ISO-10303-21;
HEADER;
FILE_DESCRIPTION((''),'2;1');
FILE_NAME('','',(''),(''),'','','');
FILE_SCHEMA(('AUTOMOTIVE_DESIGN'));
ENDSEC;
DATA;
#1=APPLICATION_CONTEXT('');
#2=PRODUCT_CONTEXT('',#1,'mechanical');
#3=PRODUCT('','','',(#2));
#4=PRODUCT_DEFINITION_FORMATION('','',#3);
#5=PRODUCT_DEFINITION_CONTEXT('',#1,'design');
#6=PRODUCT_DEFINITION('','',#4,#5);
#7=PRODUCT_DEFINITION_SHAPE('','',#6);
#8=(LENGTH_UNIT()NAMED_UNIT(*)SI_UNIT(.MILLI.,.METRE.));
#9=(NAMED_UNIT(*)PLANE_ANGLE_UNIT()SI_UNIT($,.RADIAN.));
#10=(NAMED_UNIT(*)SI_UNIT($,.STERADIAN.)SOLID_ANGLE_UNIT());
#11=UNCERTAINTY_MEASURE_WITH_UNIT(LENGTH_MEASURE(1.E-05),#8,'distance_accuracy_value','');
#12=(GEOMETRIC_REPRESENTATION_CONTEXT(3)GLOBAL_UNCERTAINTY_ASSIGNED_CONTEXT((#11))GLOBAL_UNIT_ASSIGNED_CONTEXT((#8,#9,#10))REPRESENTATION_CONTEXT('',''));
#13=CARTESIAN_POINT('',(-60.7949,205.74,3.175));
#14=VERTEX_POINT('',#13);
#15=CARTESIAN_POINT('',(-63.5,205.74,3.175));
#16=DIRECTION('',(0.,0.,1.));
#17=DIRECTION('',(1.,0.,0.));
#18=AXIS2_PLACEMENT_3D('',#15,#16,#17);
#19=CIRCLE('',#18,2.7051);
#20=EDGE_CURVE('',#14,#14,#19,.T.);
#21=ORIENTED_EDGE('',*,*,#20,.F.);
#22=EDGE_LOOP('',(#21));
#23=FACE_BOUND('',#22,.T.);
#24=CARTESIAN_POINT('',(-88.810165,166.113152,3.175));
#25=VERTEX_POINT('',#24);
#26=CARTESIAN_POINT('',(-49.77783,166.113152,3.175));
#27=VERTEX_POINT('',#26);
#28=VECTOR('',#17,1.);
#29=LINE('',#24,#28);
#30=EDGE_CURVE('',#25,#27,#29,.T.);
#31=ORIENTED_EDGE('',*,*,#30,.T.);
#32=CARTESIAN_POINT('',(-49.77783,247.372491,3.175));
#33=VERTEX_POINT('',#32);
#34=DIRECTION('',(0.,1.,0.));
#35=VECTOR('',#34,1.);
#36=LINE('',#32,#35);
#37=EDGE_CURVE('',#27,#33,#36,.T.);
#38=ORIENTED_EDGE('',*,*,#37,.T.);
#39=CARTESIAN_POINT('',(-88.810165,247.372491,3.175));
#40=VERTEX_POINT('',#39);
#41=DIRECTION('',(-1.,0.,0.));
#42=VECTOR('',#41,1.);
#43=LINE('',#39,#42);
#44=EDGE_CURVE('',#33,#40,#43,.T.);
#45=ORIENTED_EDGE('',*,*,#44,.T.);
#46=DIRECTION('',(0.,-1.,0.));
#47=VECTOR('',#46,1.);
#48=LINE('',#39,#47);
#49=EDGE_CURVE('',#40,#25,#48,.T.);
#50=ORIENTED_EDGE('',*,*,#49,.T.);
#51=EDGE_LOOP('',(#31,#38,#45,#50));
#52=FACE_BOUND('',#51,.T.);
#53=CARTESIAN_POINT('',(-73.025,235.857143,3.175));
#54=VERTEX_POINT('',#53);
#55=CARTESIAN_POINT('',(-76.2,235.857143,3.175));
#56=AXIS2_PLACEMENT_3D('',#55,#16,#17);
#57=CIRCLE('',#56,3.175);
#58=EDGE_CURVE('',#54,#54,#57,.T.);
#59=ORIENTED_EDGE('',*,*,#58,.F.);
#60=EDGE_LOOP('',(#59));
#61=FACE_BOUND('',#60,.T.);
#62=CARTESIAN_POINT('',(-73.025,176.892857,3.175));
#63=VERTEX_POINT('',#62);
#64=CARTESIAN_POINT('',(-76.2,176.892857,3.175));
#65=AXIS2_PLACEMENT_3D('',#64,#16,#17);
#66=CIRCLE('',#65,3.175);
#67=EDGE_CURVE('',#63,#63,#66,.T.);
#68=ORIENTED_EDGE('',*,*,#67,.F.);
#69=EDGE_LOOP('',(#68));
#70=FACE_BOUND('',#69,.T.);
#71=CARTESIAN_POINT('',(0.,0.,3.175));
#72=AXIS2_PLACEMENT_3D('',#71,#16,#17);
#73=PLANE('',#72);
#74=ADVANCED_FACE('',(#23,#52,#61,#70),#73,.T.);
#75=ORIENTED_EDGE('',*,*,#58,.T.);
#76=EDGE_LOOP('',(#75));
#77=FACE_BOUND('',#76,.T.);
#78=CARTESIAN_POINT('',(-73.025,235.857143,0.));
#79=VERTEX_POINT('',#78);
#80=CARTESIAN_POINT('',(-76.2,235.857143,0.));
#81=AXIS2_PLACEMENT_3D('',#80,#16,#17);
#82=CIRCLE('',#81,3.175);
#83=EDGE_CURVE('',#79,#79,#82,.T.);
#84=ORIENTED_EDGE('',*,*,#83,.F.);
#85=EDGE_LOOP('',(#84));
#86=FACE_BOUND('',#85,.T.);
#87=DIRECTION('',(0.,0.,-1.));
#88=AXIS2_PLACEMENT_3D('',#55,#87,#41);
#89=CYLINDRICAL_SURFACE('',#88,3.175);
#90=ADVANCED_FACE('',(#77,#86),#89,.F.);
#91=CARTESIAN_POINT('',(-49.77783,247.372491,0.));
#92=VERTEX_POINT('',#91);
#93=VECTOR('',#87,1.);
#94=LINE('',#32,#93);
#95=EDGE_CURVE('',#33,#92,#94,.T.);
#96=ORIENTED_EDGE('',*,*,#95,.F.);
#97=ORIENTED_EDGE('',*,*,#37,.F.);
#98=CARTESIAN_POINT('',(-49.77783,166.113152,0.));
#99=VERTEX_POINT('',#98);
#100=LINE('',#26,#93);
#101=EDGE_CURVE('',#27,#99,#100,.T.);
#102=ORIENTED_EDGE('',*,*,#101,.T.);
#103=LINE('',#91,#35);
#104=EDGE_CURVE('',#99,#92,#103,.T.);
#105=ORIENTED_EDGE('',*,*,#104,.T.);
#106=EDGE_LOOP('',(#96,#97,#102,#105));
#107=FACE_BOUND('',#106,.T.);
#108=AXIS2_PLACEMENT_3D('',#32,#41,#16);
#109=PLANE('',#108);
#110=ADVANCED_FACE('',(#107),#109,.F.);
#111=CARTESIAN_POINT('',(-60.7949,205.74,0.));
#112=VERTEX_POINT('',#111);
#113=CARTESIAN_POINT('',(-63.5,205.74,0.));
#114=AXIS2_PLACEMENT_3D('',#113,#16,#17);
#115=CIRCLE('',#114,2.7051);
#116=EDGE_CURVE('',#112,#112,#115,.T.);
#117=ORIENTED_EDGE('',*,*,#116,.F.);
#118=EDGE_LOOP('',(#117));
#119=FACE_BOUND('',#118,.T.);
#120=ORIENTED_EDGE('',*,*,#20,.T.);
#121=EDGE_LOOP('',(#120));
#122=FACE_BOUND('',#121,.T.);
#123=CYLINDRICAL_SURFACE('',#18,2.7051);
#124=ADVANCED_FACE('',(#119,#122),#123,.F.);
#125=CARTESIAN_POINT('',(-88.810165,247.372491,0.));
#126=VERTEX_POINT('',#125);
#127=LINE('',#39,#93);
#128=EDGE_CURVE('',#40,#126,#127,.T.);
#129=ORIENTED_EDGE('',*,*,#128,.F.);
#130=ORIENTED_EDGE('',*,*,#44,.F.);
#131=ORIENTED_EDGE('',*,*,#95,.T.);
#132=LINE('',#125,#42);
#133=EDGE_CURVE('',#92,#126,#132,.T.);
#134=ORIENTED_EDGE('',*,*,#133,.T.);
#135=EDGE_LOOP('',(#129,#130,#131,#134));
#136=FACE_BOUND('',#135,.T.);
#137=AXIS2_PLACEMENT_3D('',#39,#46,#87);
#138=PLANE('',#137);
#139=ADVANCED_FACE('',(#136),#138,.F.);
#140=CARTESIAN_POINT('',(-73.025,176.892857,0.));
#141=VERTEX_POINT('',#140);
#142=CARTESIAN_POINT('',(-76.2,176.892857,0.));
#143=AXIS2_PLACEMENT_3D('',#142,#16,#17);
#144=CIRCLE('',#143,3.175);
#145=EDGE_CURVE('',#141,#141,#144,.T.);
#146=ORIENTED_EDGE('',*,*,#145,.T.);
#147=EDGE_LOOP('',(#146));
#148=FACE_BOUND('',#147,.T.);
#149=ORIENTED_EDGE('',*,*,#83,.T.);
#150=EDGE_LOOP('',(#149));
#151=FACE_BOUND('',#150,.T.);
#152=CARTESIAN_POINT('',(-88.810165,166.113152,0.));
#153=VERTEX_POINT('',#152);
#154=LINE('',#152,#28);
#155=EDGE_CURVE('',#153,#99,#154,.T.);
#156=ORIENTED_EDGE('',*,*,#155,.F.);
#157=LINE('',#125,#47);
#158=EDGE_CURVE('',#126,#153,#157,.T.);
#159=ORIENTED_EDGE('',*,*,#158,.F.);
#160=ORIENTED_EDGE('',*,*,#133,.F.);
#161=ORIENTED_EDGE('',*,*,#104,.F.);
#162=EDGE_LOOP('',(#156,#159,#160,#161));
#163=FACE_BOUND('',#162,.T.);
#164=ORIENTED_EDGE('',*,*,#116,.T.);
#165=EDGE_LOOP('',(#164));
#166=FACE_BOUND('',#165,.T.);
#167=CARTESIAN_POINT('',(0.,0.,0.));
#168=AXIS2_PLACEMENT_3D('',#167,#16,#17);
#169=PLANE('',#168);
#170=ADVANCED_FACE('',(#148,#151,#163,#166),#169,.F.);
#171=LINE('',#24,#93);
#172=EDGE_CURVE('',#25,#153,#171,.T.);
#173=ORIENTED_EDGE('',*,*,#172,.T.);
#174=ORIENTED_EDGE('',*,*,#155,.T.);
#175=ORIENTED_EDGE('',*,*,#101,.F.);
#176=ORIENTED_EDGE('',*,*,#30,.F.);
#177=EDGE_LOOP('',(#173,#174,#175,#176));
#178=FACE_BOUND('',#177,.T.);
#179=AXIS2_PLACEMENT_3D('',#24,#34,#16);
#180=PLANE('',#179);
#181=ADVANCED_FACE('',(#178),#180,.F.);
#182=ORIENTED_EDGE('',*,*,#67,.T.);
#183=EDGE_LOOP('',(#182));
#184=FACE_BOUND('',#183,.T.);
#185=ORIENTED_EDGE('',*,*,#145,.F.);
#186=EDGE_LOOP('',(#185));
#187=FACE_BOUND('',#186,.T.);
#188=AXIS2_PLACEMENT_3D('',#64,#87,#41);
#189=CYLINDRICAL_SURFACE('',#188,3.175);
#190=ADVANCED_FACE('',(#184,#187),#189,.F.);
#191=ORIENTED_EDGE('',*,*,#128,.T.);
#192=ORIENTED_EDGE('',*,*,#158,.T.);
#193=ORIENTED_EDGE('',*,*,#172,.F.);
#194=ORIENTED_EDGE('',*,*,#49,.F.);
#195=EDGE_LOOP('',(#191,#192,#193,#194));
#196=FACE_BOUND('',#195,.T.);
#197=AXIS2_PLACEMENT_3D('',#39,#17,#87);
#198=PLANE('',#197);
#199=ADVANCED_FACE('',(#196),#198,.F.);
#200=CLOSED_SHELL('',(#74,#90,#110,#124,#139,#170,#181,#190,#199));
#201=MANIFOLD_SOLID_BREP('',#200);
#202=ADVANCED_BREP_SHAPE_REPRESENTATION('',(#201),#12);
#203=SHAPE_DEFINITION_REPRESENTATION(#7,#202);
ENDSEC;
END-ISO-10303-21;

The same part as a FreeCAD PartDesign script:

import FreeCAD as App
import Part
import Sketcher
from FreeCAD import Vector
Q = App.Units.Quantity


def add_polygon(sketch, points):
    """Adds a closed chain of lines whose ends are joined by coincident constraints."""
    first, n = sketch.GeometryCount, len(points)
    for a, b in zip(points, points[1:] + points[:1]):
        sketch.addGeometry(Part.LineSegment(App.Vector(*a, 0), App.Vector(*b, 0)), False)
    for i in range(n):
        sketch.addConstraint(Sketcher.Constraint("Coincident", first + i, 2, first + (i + 1) % n, 1))

doc = App.newDocument("Part")
body = doc.addObject("PartDesign::Body", "Body")

# Sketch on XY plane
sketch1 = body.newObject("Sketcher::SketchObject", "Sketch")
sketch1.AttachmentSupport = (doc.getObject("XY_Plane"), [""])
sketch1.MapMode = "FlatFace"
add_polygon(sketch1, [(-88.8, 247.4), (-88.8, 166.1), (-49.8, 166.1), (-49.8, 247.4)])  # lines 0-3
sketch1.addGeometry(Part.Circle(Vector(-76.2, 176.9, 0), Vector(0, 0, 1), 3.2), False)  # 4
sketch1.addGeometry(Part.Circle(Vector(-76.2, 235.9, 0), Vector(0, 0, 1), 3.2), False)  # 5
sketch1.addConstraint([
    Sketcher.Constraint("Vertical", 0),
    Sketcher.Constraint("Horizontal", 1),
    Sketcher.Constraint("Vertical", 2),
    Sketcher.Constraint("Horizontal", 3),
    Sketcher.Constraint("Equal", 4, 5),
    Sketcher.Constraint("Vertical", 4, 3, 5, 3),
    Sketcher.Constraint("Diameter", 4, Q("0.25 in")),
    Sketcher.Constraint("DistanceX", 4, 3, -1, 1, Q("3 in")),
    Sketcher.Constraint("DistanceY", 0, 2, 0, 1, 81.259338),
    Sketcher.Constraint("DistanceX", 1, 1, 1, 2, 39.032335),
    Sketcher.Constraint("DistanceX", 1, 2, -1, 1, 49.77783),
    Sketcher.Constraint("DistanceY", -1, 1, 2, 2, 247.372491),
    Sketcher.Constraint("DistanceY", 0, 2, 5, 3, 69.74399),
    Sketcher.Constraint("DistanceY", -1, 1, 4, 3, 176.892857),
])
pad1 = body.newObject("PartDesign::Pad", "Pad")
pad1.Profile = sketch1
pad1.Length = Q("0.125 in")

# Sketch on XY plane
sketch2 = body.newObject("Sketcher::SketchObject", "Sketch001")
sketch2.AttachmentSupport = (doc.getObject("XY_Plane"), [""])
sketch2.MapMode = "FlatFace"
sketch2.AttachmentOffset = App.Placement(Vector(0, 0, 0.125 * 25.4), App.Rotation())
sketch2.addGeometry(Part.Circle(Vector(-63.5, 205.7, 0), Vector(0, 0, 1), 2.7), False)
sketch2.addConstraint([
    Sketcher.Constraint("Diameter", 0, Q("0.213 in")),
    Sketcher.Constraint("DistanceX", 0, 3, -1, 1, Q("2.5 in")),
    Sketcher.Constraint("DistanceY", -1, 1, 0, 3, Q("8.1 in")),
])
doc.recompute()
hole = body.newObject("PartDesign::Hole", "Hole")
hole.Profile = sketch2
hole.ThreadType = "None"
hole.Diameter = Q("0.213 in")
hole.DepthType = "ThroughAll"

doc.recompute()
